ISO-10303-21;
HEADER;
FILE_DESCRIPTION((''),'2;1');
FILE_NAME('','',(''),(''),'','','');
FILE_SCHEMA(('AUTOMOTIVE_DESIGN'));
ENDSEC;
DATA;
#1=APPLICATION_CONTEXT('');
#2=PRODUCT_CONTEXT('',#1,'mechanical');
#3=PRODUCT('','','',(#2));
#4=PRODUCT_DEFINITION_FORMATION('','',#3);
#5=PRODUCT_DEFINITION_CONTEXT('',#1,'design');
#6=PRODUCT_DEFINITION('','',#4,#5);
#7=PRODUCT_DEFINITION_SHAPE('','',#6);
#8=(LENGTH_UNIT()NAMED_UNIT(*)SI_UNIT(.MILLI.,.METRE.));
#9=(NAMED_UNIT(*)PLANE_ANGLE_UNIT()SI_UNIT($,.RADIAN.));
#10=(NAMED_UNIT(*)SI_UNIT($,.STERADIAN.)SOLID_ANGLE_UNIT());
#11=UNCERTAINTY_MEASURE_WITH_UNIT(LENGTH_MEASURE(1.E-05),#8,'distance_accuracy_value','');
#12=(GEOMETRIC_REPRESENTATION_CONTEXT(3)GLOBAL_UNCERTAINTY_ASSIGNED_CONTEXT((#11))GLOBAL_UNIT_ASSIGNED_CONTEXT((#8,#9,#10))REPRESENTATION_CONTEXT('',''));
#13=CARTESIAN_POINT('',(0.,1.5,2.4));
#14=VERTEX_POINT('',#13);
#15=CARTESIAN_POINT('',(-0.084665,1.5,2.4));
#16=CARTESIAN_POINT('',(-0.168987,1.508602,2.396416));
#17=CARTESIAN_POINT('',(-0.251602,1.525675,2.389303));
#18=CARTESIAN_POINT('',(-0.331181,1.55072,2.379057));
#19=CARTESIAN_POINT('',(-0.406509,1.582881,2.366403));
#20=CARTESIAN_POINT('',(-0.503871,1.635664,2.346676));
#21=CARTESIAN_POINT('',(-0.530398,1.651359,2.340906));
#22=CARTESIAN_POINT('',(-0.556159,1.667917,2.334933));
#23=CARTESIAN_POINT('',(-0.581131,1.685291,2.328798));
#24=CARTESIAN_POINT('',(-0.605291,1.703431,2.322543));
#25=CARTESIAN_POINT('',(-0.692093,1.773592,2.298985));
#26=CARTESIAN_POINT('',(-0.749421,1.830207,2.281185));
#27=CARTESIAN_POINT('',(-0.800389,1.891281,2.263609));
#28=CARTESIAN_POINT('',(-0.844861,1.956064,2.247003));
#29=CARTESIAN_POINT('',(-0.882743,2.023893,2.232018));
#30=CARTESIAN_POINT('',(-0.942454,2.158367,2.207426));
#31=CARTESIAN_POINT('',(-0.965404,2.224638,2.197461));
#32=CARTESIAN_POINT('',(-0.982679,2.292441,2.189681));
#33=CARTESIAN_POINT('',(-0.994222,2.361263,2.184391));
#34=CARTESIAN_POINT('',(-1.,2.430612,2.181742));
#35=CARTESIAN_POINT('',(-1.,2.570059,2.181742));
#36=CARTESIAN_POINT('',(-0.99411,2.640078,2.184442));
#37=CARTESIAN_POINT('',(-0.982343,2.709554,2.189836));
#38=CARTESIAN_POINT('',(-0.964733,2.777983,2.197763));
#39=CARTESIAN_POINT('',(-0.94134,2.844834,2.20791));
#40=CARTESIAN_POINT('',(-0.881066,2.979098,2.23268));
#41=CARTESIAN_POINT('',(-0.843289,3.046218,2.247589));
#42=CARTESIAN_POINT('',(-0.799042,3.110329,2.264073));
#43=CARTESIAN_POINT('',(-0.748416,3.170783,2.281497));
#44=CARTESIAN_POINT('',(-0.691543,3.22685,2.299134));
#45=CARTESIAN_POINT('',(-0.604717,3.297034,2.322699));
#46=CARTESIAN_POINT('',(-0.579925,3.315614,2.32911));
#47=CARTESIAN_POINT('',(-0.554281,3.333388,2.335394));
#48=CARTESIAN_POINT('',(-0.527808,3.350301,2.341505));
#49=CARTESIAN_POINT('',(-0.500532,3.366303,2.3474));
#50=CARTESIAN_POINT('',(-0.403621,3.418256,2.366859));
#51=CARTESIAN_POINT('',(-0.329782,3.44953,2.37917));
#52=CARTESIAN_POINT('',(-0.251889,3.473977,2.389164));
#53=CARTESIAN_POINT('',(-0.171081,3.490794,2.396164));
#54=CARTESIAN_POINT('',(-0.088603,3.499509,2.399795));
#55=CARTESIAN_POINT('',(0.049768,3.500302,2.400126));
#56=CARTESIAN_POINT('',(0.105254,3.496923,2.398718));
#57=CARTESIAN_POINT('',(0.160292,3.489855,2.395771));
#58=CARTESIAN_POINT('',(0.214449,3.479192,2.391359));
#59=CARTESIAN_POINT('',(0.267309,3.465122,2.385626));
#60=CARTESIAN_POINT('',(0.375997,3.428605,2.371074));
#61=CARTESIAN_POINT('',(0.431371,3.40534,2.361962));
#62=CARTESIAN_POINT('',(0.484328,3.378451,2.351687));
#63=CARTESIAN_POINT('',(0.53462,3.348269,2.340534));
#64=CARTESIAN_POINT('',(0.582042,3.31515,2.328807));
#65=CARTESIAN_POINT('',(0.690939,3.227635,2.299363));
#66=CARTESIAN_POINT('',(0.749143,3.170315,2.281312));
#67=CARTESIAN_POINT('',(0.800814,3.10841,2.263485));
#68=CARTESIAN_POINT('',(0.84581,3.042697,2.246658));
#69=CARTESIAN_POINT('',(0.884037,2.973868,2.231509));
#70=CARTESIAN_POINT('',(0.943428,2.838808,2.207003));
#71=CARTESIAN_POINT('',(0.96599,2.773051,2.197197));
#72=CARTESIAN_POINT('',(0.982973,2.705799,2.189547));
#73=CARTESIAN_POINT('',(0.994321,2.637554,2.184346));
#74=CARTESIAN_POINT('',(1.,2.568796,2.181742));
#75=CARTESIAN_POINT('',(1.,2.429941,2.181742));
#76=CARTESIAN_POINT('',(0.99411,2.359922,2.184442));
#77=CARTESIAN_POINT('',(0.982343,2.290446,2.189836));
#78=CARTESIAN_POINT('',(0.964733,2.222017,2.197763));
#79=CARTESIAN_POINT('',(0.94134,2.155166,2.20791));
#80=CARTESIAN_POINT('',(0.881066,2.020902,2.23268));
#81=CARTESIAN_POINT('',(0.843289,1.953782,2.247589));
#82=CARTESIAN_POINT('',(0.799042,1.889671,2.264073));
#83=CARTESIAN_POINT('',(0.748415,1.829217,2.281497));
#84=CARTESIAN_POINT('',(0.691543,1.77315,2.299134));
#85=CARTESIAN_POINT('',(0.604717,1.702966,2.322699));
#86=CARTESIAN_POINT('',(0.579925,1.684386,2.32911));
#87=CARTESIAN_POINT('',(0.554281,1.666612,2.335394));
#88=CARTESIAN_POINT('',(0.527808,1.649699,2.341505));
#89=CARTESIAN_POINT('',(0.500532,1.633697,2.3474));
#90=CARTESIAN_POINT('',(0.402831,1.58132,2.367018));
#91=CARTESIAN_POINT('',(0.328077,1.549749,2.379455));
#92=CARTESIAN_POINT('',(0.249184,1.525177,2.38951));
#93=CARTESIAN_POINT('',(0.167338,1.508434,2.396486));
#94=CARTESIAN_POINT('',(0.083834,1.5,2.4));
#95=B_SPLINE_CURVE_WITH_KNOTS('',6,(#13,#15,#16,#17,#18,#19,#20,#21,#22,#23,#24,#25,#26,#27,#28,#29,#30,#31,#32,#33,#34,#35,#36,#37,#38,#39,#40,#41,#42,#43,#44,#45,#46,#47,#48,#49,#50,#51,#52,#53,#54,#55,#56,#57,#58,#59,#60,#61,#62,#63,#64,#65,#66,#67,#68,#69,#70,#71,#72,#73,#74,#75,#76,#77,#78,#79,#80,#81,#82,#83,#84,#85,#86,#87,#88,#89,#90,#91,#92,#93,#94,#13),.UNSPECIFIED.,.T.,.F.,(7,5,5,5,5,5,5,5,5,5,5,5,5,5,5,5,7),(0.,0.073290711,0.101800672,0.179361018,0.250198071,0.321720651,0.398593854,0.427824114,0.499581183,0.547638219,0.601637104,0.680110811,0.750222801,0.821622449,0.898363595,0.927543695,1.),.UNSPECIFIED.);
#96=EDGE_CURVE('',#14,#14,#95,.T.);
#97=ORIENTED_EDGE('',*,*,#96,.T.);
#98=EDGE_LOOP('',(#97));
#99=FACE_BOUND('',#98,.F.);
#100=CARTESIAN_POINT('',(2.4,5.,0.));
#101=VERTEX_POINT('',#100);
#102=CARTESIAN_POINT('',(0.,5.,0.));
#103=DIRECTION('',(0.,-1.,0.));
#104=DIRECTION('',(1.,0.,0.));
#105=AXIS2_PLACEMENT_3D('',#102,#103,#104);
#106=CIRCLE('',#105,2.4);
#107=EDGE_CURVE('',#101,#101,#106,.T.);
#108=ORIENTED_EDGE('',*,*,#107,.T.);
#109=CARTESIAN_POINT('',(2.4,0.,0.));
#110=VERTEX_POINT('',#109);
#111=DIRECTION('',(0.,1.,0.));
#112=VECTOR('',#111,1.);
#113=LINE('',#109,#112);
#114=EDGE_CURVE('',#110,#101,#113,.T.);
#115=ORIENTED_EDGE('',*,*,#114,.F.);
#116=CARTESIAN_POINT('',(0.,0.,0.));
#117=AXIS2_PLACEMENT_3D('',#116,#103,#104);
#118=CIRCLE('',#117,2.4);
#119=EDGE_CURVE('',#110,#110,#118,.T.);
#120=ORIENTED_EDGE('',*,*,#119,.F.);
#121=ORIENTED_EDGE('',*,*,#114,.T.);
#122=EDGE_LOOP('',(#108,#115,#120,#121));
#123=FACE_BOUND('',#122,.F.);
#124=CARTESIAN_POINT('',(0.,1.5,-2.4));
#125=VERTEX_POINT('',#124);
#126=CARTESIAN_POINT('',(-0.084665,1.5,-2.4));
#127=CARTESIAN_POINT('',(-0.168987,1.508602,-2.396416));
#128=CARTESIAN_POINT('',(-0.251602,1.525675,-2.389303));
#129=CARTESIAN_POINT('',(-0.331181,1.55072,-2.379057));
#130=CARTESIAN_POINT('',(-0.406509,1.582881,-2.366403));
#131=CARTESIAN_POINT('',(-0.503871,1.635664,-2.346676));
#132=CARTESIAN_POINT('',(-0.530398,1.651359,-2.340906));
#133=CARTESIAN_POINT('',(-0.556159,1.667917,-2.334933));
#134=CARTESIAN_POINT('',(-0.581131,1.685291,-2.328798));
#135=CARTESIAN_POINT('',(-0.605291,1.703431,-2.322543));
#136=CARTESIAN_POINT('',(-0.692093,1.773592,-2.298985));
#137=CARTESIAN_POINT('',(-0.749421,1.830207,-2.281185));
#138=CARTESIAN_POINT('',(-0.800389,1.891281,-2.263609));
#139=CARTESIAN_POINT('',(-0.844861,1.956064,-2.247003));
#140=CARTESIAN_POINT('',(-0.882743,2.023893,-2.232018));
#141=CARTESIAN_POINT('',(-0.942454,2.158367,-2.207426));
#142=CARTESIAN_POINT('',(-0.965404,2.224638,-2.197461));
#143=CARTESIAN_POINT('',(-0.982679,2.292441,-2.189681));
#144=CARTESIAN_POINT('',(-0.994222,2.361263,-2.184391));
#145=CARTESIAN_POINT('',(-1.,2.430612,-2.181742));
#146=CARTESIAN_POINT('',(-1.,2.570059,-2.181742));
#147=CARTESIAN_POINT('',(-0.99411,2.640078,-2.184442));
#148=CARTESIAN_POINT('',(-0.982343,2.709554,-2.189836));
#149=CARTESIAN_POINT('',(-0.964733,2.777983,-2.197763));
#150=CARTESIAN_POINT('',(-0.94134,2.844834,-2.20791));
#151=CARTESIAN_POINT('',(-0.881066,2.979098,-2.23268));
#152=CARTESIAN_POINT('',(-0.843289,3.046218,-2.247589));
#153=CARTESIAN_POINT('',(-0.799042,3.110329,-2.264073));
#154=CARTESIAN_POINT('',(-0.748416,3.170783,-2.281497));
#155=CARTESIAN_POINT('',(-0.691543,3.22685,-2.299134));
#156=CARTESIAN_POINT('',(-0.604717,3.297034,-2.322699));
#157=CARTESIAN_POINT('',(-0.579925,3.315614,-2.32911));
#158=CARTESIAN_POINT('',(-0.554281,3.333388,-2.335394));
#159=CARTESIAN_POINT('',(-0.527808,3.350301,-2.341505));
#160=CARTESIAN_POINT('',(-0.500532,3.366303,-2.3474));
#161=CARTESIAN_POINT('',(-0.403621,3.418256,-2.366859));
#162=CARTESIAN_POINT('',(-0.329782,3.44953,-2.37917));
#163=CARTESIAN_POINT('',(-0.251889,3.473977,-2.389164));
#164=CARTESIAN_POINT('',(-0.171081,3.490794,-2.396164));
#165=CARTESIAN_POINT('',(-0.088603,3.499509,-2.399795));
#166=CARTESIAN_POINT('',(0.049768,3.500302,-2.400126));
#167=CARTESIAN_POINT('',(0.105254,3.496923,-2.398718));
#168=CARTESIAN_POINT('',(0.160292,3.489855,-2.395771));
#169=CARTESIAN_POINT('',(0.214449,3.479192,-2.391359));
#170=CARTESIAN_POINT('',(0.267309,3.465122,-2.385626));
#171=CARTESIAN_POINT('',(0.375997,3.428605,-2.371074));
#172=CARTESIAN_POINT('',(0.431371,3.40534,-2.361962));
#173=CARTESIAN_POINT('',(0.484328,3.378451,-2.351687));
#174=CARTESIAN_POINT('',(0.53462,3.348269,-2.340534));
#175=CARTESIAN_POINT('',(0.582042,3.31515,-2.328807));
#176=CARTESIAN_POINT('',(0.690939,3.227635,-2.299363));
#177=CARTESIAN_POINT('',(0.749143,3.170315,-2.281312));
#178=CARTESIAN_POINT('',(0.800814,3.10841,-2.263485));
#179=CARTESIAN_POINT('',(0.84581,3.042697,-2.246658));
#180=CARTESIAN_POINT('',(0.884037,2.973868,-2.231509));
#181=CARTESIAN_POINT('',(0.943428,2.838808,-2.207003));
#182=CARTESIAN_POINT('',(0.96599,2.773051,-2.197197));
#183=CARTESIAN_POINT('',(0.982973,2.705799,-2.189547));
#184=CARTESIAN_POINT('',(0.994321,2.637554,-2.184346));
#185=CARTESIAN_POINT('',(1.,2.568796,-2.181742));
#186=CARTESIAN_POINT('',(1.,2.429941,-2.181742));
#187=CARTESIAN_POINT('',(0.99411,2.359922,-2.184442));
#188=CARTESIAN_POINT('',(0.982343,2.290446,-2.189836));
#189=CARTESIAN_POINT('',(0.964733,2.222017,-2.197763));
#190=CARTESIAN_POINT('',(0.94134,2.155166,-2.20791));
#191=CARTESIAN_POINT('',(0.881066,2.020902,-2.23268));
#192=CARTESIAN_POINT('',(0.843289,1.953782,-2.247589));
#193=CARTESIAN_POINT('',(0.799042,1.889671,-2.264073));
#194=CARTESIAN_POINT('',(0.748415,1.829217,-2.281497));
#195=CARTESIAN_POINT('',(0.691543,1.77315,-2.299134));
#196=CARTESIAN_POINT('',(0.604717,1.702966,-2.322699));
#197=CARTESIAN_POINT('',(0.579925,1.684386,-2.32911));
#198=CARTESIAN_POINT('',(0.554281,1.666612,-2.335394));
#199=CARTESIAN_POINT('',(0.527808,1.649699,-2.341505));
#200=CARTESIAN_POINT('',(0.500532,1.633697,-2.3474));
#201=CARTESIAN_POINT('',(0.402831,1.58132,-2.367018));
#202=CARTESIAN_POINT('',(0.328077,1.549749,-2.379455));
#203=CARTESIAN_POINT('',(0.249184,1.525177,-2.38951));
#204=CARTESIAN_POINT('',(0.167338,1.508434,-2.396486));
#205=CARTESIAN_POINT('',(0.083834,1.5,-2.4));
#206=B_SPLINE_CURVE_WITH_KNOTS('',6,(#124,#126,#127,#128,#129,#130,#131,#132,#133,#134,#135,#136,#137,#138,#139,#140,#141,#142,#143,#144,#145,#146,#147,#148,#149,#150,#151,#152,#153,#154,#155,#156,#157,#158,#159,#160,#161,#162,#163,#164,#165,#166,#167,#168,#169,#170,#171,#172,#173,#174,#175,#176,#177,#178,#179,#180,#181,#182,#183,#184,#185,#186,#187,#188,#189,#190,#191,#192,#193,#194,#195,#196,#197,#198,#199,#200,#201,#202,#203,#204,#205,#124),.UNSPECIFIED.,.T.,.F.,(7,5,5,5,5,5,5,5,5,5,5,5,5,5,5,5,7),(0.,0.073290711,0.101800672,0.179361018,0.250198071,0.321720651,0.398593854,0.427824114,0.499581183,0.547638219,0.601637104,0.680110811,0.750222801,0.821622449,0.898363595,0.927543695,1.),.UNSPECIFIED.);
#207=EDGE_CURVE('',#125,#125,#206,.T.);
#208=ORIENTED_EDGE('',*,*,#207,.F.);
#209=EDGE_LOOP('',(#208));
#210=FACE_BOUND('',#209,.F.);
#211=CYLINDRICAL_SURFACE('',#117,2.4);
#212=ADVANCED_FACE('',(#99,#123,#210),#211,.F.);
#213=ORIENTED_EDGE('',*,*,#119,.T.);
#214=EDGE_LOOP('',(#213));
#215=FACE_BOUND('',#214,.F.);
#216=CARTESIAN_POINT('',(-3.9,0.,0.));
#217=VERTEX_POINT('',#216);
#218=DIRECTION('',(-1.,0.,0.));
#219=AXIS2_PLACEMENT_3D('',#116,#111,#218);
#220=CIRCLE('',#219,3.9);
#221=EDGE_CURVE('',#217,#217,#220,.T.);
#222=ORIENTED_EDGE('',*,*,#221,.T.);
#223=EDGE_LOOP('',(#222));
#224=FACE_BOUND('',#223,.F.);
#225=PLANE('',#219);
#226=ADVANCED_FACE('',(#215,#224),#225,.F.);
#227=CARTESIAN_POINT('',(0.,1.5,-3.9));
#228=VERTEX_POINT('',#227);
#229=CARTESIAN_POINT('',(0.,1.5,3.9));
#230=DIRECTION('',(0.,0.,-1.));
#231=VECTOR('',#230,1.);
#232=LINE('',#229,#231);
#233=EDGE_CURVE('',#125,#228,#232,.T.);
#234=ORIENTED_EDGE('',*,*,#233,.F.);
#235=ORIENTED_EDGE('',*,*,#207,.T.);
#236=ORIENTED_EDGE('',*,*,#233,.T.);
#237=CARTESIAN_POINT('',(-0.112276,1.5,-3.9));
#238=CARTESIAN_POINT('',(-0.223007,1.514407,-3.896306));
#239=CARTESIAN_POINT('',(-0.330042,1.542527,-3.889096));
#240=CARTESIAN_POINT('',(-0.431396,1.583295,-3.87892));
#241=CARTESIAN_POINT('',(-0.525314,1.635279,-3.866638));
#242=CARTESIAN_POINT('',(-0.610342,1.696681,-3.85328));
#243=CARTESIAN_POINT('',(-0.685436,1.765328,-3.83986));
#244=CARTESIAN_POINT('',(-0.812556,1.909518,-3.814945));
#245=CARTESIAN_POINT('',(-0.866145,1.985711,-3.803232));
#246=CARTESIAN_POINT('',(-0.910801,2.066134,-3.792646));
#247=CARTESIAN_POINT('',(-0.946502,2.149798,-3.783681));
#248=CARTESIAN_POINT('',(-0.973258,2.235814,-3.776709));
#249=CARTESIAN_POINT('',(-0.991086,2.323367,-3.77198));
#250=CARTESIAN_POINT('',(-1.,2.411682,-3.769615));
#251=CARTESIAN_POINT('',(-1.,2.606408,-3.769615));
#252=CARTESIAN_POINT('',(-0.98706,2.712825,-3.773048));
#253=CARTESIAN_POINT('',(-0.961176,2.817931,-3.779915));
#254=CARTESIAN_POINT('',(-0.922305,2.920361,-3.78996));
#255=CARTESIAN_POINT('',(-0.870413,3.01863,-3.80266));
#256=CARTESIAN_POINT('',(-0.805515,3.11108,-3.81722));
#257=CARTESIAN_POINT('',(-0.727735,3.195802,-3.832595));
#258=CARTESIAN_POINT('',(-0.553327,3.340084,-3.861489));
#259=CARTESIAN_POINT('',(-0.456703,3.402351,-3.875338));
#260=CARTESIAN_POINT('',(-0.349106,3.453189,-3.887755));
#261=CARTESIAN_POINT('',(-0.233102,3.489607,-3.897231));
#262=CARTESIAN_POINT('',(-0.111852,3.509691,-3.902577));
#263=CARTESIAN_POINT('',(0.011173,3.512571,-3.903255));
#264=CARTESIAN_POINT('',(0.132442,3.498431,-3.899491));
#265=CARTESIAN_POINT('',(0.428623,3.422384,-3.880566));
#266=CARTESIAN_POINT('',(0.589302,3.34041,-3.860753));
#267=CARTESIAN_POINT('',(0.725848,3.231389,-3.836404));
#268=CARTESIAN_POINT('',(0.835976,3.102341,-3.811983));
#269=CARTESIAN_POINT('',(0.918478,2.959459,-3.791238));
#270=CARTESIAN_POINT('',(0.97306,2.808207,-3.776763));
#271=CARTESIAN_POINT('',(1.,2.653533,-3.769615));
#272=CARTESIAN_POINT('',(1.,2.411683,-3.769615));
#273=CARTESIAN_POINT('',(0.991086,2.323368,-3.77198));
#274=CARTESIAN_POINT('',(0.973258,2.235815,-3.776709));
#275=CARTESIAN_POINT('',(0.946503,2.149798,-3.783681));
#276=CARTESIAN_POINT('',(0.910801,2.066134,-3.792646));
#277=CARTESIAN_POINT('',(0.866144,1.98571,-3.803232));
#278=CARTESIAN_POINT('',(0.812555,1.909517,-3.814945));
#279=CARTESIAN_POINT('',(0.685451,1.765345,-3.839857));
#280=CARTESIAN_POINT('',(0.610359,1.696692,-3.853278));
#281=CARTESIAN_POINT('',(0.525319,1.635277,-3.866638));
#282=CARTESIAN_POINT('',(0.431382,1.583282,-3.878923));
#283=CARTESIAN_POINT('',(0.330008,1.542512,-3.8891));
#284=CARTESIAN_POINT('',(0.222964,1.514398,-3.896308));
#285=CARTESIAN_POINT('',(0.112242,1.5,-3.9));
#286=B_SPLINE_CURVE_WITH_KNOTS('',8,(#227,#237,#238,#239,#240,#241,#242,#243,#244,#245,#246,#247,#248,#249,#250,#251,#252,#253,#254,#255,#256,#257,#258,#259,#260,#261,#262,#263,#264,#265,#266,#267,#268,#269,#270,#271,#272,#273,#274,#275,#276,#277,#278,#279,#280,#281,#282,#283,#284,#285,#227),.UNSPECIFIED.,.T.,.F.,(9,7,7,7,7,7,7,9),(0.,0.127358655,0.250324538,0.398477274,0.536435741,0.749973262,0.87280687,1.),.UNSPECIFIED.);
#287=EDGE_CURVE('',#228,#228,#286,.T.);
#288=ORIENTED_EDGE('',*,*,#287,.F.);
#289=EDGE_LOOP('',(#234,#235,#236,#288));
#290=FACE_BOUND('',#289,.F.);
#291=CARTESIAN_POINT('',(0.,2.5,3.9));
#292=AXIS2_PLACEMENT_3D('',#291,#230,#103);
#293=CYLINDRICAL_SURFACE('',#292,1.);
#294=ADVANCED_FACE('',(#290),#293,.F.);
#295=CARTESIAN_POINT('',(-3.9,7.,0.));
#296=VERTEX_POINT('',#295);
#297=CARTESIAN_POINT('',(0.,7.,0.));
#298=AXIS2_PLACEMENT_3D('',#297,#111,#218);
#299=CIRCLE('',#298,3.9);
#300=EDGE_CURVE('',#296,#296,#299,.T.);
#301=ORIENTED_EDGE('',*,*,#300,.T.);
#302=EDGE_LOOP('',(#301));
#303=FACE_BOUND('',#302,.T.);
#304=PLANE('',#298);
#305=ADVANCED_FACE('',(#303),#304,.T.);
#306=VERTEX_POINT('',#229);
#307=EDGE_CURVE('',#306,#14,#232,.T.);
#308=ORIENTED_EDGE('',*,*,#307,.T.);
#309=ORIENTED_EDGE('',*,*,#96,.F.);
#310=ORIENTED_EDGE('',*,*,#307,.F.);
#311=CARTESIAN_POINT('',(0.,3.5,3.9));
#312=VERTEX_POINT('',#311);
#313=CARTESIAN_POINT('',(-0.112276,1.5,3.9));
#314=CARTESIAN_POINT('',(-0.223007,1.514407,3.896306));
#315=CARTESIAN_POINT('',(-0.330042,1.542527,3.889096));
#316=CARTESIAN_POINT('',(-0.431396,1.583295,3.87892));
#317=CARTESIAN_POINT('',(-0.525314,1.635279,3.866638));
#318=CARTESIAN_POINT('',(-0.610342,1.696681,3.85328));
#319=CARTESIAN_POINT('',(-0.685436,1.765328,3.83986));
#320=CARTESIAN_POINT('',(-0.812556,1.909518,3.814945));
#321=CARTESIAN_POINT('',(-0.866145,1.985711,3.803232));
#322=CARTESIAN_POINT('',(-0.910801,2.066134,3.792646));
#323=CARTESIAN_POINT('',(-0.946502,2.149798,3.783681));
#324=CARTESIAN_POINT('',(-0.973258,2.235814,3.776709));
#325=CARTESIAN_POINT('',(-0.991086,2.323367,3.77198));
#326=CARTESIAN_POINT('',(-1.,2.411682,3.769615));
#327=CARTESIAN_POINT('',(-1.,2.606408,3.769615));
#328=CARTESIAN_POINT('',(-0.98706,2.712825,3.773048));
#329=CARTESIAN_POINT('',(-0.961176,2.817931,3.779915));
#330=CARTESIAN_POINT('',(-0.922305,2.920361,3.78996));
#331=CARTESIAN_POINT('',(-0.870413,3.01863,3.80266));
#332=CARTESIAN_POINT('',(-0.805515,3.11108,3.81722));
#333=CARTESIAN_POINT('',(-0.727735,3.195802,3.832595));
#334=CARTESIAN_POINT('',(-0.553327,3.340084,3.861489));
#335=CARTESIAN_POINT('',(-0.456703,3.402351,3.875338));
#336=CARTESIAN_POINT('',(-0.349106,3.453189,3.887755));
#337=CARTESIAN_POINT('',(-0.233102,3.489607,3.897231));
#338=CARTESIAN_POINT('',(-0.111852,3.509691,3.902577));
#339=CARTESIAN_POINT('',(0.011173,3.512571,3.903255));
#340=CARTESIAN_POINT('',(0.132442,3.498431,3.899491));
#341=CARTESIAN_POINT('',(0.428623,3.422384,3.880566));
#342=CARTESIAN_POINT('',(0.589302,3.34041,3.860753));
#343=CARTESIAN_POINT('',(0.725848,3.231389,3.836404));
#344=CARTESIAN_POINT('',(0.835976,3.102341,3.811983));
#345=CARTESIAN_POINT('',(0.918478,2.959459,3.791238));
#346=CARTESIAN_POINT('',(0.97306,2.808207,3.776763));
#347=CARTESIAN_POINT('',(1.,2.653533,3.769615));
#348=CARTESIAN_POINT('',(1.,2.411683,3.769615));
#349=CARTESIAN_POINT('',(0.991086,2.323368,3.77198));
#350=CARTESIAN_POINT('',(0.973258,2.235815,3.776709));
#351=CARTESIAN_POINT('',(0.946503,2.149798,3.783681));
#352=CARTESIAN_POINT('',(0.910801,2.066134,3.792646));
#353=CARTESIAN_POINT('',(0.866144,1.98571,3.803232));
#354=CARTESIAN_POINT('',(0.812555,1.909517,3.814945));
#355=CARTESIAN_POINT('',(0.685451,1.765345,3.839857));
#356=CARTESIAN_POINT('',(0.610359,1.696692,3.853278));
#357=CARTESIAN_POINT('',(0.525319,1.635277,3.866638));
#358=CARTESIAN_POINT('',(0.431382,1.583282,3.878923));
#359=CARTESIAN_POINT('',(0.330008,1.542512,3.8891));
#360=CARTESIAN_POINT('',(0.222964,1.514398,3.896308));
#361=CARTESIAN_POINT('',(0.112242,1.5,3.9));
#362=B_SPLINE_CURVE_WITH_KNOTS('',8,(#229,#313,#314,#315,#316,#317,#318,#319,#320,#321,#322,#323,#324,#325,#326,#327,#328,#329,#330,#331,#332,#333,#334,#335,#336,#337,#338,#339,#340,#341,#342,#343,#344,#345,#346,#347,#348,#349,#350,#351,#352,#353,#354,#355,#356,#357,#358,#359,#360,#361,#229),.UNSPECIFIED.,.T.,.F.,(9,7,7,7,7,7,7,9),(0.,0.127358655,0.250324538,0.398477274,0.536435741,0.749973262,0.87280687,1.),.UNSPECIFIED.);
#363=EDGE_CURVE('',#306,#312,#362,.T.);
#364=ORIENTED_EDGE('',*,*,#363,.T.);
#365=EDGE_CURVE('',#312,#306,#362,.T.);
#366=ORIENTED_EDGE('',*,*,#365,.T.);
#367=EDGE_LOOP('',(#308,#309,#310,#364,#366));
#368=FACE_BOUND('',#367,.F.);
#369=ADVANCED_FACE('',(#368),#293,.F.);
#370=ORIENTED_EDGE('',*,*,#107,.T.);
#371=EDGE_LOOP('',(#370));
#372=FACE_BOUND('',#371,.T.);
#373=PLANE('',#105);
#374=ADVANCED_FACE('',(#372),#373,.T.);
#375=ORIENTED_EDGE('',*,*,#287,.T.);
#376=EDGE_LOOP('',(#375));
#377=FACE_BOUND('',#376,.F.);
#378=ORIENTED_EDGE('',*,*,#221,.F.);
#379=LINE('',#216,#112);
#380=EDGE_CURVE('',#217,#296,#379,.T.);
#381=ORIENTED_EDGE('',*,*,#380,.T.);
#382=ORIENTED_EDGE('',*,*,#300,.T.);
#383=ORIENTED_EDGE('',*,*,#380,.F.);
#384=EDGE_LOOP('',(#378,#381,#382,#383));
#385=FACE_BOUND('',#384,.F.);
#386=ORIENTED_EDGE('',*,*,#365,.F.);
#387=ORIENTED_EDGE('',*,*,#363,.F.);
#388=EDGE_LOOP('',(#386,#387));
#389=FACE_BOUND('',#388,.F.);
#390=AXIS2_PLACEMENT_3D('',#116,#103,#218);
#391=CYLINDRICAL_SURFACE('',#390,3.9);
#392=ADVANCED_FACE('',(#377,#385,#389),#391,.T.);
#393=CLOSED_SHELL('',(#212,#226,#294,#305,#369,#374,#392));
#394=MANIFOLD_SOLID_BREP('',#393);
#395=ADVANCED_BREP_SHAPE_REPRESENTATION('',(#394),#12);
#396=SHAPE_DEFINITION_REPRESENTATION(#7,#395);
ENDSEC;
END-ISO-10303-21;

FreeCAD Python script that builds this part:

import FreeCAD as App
import Part
import Sketcher
Q = App.Units.Quantity

doc = App.newDocument("Part")
body = doc.addObject("PartDesign::Body", "Body")

# Sketch on XZ plane
sketch1 = body.newObject("Sketcher::SketchObject", "Sketch")
sketch1.AttachmentSupport = (doc.getObject("XZ_Plane"), [""])
sketch1.MapMode = "FlatFace"
sketch1.addGeometry(Part.Circle(App.Vector(0, 0, 0), App.Vector(0, 0, 1), 3.9), False)
sketch1.addConstraint(Sketcher.Constraint("Coincident", 0, 3, -1, 1))
sketch1.addConstraint(Sketcher.Constraint("Diameter", 0, Q("7.8 mm")))
pad1 = body.newObject("PartDesign::Pad", "Pad")
pad1.Profile = sketch1
pad1.Length = 7
pad1.Reversed = True

# Sketch on XZ plane
sketch2 = body.newObject("Sketcher::SketchObject", "Sketch001")
sketch2.AttachmentSupport = (doc.getObject("XZ_Plane"), [""])
sketch2.MapMode = "FlatFace"
sketch2.addGeometry(Part.Circle(App.Vector(0, 0, 0), App.Vector(0, 0, 1), 2.4), False)
sketch2.addConstraint(Sketcher.Constraint("Coincident", 0, 3, -1, 1))
sketch2.addConstraint(Sketcher.Constraint("Diameter", 0, Q("4.8 mm")))
pocket1 = body.newObject("PartDesign::Pocket", "Pocket")
pocket1.Profile = sketch2
pocket1.Length = 5

# Sketch on XY plane
sketch3 = body.newObject("Sketcher::SketchObject", "Sketch002")
sketch3.AttachmentSupport = (doc.getObject("XY_Plane"), [""])
sketch3.MapMode = "FlatFace"
sketch3.AttachmentOffset = App.Placement(App.Vector(0, 0, 3.9), App.Rotation())
sketch3.addGeometry(Part.Circle(App.Vector(0, 2.5, 0), App.Vector(0, 0, 1), 1), False)
sketch3.addConstraint(Sketcher.Constraint("PointOnObject", 0, 3, -2))
sketch3.addConstraint(Sketcher.Constraint("Diameter", 0, Q("2 mm")))
sketch3.addConstraint(Sketcher.Constraint("DistanceY", -1, 1, 0, 3, Q("2.5 mm")))
doc.recompute()
hole = body.newObject("PartDesign::Hole", "Hole")
hole.Profile = sketch3
hole.ThreadType = "None"
hole.Diameter = 2
hole.DepthType = "ThroughAll"

doc.recompute()
